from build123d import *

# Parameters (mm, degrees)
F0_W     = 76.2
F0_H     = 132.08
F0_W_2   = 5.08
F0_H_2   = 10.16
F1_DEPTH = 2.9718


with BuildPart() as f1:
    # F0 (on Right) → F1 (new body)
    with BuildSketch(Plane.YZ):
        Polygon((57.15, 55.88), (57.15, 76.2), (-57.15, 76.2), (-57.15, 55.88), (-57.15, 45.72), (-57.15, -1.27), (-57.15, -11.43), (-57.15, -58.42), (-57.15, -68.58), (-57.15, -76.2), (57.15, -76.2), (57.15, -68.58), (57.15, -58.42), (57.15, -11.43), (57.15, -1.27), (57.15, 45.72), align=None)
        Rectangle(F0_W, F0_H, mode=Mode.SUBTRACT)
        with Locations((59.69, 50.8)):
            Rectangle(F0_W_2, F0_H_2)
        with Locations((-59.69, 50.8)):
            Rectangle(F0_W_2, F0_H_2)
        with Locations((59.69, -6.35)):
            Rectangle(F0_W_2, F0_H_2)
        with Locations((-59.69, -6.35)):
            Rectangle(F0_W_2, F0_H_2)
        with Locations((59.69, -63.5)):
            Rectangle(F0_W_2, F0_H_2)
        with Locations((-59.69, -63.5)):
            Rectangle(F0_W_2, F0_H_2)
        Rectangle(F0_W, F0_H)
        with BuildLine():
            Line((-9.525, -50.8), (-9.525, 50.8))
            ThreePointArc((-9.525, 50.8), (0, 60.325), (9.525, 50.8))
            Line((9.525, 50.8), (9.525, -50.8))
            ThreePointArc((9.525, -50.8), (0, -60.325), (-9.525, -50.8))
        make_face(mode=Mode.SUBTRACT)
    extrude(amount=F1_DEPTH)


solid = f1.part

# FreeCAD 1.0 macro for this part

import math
import FreeCAD as App
import Part
import Sketcher

V = App.Vector
Q = App.Units.Quantity

doc = App.newDocument("Part")
body = doc.addObject("PartDesign::Body", "Body")

sketch1 = doc.addObject("Sketcher::SketchObject", "Sketch")
body.addObject(sketch1)
sketch1.AttachmentSupport = (doc.YZ_Plane, [""])
sketch1.MapMode = "FlatFace"
sketch1.addGeometry([
    Part.LineSegment(V(57, 76, 0), V(-57, 76, 0)),
    Part.LineSegment(V(-57, 76, 0), V(-57, 56, 0)),
    Part.LineSegment(V(-57, 56, 0), V(-62, 56, 0)),
    Part.LineSegment(V(-62, 56, 0), V(-62, 46, 0)),
    Part.LineSegment(V(-62, 46, 0), V(-57, 46, 0)),
    Part.LineSegment(V(-57, 46, 0), V(-57, -1, 0)),
    Part.LineSegment(V(-57, -1, 0), V(-62, -1, 0)),
    Part.LineSegment(V(-62, -1, 0), V(-62, -11, 0)),
    Part.LineSegment(V(-62, -11, 0), V(-57, -11, 0)),
    Part.LineSegment(V(-57, -11, 0), V(-57, -58, 0)),
    Part.LineSegment(V(-57, -58, 0), V(-62, -58, 0)),
    Part.LineSegment(V(-62, -58, 0), V(-62, -69, 0)),
    Part.LineSegment(V(-62, -69, 0), V(-57, -69, 0)),
    Part.LineSegment(V(-57, -69, 0), V(-57, -76, 0)),
    Part.LineSegment(V(-57, -76, 0), V(57, -76, 0)),
    Part.LineSegment(V(57, -76, 0), V(57, -69, 0)),
    Part.LineSegment(V(57, -69, 0), V(62, -69, 0)),
    Part.LineSegment(V(62, -69, 0), V(62, -58, 0)),
    Part.LineSegment(V(62, -58, 0), V(57, -58, 0)),
    Part.LineSegment(V(57, -58, 0), V(57, -11, 0)),
    Part.LineSegment(V(57, -11, 0), V(62, -11, 0)),
    Part.LineSegment(V(62, -11, 0), V(62, -1, 0)),
    Part.LineSegment(V(62, -1, 0), V(57, -1, 0)),
    Part.LineSegment(V(57, -1, 0), V(57, 46, 0)),
    Part.LineSegment(V(57, 46, 0), V(62, 46, 0)),
    Part.LineSegment(V(62, 46, 0), V(62, 56, 0)),
    Part.LineSegment(V(62, 56, 0), V(57, 56, 0)),
    Part.LineSegment(V(57, 56, 0), V(57, 76, 0)),
    Part.ArcOfCircle(Part.Circle(V(0, -51, 0), V(0, 0, 1), 10), math.radians(180), math.radians(360)),
    Part.LineSegment(V(-10, -51, 0), V(-10, 51, 0)),
    Part.ArcOfCircle(Part.Circle(V(0, 51, 0), V(0, 0, 1), 10), math.radians(0), math.radians(180)),
    Part.LineSegment(V(10, 51, 0), V(10, -51, 0)),
], False)
sketch1.addConstraint([
    Sketcher.Constraint("Coincident", 0, 2, 1, 1),
    Sketcher.Constraint("Coincident", 1, 2, 2, 1),
    Sketcher.Constraint("Coincident", 2, 2, 3, 1),
    Sketcher.Constraint("Coincident", 3, 2, 4, 1),
    Sketcher.Constraint("Coincident", 4, 2, 5, 1),
    Sketcher.Constraint("Coincident", 5, 2, 6, 1),
    Sketcher.Constraint("Coincident", 6, 2, 7, 1),
    Sketcher.Constraint("Coincident", 7, 2, 8, 1),
    Sketcher.Constraint("Coincident", 8, 2, 9, 1),
    Sketcher.Constraint("Coincident", 9, 2, 10, 1),
    Sketcher.Constraint("Coincident", 10, 2, 11, 1),
    Sketcher.Constraint("Coincident", 11, 2, 12, 1),
    Sketcher.Constraint("Coincident", 12, 2, 13, 1),
    Sketcher.Constraint("Coincident", 13, 2, 14, 1),
    Sketcher.Constraint("Coincident", 14, 2, 15, 1),
    Sketcher.Constraint("Coincident", 15, 2, 16, 1),
    Sketcher.Constraint("Coincident", 16, 2, 17, 1),
    Sketcher.Constraint("Coincident", 17, 2, 18, 1),
    Sketcher.Constraint("Coincident", 18, 2, 19, 1),
    Sketcher.Constraint("Coincident", 19, 2, 20, 1),
    Sketcher.Constraint("Coincident", 20, 2, 21, 1),
    Sketcher.Constraint("Coincident", 21, 2, 22, 1),
    Sketcher.Constraint("Coincident", 22, 2, 23, 1),
    Sketcher.Constraint("Coincident", 23, 2, 24, 1),
    Sketcher.Constraint("Coincident", 24, 2, 25, 1),
    Sketcher.Constraint("Coincident", 25, 2, 26, 1),
    Sketcher.Constraint("Coincident", 26, 2, 27, 1),
    Sketcher.Constraint("Coincident", 27, 2, 0, 1),
    Sketcher.Constraint("Tangent", 28, 1, 29, 1),
    Sketcher.Constraint("Tangent", 29, 2, 30, 2),
    Sketcher.Constraint("Tangent", 30, 1, 31, 1),
    Sketcher.Constraint("Tangent", 31, 2, 28, 2),
    Sketcher.Constraint("Horizontal", 0),
    Sketcher.Constraint("Vertical", 1),
    Sketcher.Constraint("Horizontal", 2),
    Sketcher.Constraint("Vertical", 3),
    Sketcher.Constraint("Horizontal", 4),
    Sketcher.Constraint("Vertical", 5),
    Sketcher.Constraint("Horizontal", 6),
    Sketcher.Constraint("Vertical", 7),
    Sketcher.Constraint("Horizontal", 8),
    Sketcher.Constraint("Vertical", 9),
    Sketcher.Constraint("Horizontal", 10),
    Sketcher.Constraint("Vertical", 11),
    Sketcher.Constraint("Horizontal", 12),
    Sketcher.Constraint("Vertical", 13),
    Sketcher.Constraint("Horizontal", 14),
    Sketcher.Constraint("Vertical", 15),
    Sketcher.Constraint("Horizontal", 16),
    Sketcher.Constraint("Vertical", 17),
    Sketcher.Constraint("Horizontal", 18),
    Sketcher.Constraint("Vertical", 19),
    Sketcher.Constraint("Horizontal", 20),
    Sketcher.Constraint("Vertical", 21),
    Sketcher.Constraint("Horizontal", 22),
    Sketcher.Constraint("Vertical", 23),
    Sketcher.Constraint("Horizontal", 24),
    Sketcher.Constraint("Vertical", 25),
    Sketcher.Constraint("Horizontal", 26),
    Sketcher.Constraint("Vertical", 27),
    Sketcher.Constraint("Vertical", 29),
    Sketcher.Constraint("Vertical", 31),
    Sketcher.Constraint("Symmetric", 28, 3, 30, 3, -1, 1),
    Sketcher.Constraint("Symmetric", 0, 2, 14, 2, -1, 1),
    Sketcher.Constraint("Symmetric", 12, 2, 15, 2, -2),
    Sketcher.Constraint("Symmetric", 10, 2, 17, 2, -2),
    Sketcher.Constraint("Symmetric", 8, 2, 19, 2, -2),
    Sketcher.Constraint("Symmetric", 6, 2, 21, 2, -2),
    Sketcher.Constraint("Symmetric", 4, 2, 23, 2, -2),
    Sketcher.Constraint("Symmetric", 2, 2, 25, 2, -2),
    Sketcher.Constraint("Vertical", 1, 2, 4, 2),
    Sketcher.Constraint("Vertical", 3, 2, 6, 2),
    Sketcher.Constraint("Vertical", 5, 2, 8, 2),
    Sketcher.Constraint("Vertical", 7, 2, 10, 2),
    Sketcher.Constraint("Vertical", 23, 2, 26, 2),
    Sketcher.Constraint("Equal", 3, 7),
    Sketcher.Constraint("Equal", 5, 9),
    Sketcher.Constraint("Equal", 7, 11),
    Sketcher.Constraint("DistanceY", 29, 1, 29, 2, Q("4 in")),
    Sketcher.Constraint("DistanceX", 0, 2, 0, 1, Q("4.5 in")),
    Sketcher.Constraint("DistanceX", 2, 2, 2, 1, Q("0.2 in")),
    Sketcher.Constraint("DistanceY", 1, 2, 1, 1, Q("0.8 in")),
    Sketcher.Constraint("DistanceY", 3, 2, 3, 1, Q("0.4 in")),
    Sketcher.Constraint("DistanceY", 13, 2, 13, 1, Q("0.3 in")),
    Sketcher.Constraint("DistanceY", -1, 1, 0, 2, Q("3 in")),
    Sketcher.Constraint("Radius", 28, Q("0.375 in")),
])
pad1 = doc.addObject("PartDesign::Pad", "Pad")
body.addObject(pad1)
pad1.Profile = sketch1
pad1.Length = Q("0.117 in")

doc.recompute()
